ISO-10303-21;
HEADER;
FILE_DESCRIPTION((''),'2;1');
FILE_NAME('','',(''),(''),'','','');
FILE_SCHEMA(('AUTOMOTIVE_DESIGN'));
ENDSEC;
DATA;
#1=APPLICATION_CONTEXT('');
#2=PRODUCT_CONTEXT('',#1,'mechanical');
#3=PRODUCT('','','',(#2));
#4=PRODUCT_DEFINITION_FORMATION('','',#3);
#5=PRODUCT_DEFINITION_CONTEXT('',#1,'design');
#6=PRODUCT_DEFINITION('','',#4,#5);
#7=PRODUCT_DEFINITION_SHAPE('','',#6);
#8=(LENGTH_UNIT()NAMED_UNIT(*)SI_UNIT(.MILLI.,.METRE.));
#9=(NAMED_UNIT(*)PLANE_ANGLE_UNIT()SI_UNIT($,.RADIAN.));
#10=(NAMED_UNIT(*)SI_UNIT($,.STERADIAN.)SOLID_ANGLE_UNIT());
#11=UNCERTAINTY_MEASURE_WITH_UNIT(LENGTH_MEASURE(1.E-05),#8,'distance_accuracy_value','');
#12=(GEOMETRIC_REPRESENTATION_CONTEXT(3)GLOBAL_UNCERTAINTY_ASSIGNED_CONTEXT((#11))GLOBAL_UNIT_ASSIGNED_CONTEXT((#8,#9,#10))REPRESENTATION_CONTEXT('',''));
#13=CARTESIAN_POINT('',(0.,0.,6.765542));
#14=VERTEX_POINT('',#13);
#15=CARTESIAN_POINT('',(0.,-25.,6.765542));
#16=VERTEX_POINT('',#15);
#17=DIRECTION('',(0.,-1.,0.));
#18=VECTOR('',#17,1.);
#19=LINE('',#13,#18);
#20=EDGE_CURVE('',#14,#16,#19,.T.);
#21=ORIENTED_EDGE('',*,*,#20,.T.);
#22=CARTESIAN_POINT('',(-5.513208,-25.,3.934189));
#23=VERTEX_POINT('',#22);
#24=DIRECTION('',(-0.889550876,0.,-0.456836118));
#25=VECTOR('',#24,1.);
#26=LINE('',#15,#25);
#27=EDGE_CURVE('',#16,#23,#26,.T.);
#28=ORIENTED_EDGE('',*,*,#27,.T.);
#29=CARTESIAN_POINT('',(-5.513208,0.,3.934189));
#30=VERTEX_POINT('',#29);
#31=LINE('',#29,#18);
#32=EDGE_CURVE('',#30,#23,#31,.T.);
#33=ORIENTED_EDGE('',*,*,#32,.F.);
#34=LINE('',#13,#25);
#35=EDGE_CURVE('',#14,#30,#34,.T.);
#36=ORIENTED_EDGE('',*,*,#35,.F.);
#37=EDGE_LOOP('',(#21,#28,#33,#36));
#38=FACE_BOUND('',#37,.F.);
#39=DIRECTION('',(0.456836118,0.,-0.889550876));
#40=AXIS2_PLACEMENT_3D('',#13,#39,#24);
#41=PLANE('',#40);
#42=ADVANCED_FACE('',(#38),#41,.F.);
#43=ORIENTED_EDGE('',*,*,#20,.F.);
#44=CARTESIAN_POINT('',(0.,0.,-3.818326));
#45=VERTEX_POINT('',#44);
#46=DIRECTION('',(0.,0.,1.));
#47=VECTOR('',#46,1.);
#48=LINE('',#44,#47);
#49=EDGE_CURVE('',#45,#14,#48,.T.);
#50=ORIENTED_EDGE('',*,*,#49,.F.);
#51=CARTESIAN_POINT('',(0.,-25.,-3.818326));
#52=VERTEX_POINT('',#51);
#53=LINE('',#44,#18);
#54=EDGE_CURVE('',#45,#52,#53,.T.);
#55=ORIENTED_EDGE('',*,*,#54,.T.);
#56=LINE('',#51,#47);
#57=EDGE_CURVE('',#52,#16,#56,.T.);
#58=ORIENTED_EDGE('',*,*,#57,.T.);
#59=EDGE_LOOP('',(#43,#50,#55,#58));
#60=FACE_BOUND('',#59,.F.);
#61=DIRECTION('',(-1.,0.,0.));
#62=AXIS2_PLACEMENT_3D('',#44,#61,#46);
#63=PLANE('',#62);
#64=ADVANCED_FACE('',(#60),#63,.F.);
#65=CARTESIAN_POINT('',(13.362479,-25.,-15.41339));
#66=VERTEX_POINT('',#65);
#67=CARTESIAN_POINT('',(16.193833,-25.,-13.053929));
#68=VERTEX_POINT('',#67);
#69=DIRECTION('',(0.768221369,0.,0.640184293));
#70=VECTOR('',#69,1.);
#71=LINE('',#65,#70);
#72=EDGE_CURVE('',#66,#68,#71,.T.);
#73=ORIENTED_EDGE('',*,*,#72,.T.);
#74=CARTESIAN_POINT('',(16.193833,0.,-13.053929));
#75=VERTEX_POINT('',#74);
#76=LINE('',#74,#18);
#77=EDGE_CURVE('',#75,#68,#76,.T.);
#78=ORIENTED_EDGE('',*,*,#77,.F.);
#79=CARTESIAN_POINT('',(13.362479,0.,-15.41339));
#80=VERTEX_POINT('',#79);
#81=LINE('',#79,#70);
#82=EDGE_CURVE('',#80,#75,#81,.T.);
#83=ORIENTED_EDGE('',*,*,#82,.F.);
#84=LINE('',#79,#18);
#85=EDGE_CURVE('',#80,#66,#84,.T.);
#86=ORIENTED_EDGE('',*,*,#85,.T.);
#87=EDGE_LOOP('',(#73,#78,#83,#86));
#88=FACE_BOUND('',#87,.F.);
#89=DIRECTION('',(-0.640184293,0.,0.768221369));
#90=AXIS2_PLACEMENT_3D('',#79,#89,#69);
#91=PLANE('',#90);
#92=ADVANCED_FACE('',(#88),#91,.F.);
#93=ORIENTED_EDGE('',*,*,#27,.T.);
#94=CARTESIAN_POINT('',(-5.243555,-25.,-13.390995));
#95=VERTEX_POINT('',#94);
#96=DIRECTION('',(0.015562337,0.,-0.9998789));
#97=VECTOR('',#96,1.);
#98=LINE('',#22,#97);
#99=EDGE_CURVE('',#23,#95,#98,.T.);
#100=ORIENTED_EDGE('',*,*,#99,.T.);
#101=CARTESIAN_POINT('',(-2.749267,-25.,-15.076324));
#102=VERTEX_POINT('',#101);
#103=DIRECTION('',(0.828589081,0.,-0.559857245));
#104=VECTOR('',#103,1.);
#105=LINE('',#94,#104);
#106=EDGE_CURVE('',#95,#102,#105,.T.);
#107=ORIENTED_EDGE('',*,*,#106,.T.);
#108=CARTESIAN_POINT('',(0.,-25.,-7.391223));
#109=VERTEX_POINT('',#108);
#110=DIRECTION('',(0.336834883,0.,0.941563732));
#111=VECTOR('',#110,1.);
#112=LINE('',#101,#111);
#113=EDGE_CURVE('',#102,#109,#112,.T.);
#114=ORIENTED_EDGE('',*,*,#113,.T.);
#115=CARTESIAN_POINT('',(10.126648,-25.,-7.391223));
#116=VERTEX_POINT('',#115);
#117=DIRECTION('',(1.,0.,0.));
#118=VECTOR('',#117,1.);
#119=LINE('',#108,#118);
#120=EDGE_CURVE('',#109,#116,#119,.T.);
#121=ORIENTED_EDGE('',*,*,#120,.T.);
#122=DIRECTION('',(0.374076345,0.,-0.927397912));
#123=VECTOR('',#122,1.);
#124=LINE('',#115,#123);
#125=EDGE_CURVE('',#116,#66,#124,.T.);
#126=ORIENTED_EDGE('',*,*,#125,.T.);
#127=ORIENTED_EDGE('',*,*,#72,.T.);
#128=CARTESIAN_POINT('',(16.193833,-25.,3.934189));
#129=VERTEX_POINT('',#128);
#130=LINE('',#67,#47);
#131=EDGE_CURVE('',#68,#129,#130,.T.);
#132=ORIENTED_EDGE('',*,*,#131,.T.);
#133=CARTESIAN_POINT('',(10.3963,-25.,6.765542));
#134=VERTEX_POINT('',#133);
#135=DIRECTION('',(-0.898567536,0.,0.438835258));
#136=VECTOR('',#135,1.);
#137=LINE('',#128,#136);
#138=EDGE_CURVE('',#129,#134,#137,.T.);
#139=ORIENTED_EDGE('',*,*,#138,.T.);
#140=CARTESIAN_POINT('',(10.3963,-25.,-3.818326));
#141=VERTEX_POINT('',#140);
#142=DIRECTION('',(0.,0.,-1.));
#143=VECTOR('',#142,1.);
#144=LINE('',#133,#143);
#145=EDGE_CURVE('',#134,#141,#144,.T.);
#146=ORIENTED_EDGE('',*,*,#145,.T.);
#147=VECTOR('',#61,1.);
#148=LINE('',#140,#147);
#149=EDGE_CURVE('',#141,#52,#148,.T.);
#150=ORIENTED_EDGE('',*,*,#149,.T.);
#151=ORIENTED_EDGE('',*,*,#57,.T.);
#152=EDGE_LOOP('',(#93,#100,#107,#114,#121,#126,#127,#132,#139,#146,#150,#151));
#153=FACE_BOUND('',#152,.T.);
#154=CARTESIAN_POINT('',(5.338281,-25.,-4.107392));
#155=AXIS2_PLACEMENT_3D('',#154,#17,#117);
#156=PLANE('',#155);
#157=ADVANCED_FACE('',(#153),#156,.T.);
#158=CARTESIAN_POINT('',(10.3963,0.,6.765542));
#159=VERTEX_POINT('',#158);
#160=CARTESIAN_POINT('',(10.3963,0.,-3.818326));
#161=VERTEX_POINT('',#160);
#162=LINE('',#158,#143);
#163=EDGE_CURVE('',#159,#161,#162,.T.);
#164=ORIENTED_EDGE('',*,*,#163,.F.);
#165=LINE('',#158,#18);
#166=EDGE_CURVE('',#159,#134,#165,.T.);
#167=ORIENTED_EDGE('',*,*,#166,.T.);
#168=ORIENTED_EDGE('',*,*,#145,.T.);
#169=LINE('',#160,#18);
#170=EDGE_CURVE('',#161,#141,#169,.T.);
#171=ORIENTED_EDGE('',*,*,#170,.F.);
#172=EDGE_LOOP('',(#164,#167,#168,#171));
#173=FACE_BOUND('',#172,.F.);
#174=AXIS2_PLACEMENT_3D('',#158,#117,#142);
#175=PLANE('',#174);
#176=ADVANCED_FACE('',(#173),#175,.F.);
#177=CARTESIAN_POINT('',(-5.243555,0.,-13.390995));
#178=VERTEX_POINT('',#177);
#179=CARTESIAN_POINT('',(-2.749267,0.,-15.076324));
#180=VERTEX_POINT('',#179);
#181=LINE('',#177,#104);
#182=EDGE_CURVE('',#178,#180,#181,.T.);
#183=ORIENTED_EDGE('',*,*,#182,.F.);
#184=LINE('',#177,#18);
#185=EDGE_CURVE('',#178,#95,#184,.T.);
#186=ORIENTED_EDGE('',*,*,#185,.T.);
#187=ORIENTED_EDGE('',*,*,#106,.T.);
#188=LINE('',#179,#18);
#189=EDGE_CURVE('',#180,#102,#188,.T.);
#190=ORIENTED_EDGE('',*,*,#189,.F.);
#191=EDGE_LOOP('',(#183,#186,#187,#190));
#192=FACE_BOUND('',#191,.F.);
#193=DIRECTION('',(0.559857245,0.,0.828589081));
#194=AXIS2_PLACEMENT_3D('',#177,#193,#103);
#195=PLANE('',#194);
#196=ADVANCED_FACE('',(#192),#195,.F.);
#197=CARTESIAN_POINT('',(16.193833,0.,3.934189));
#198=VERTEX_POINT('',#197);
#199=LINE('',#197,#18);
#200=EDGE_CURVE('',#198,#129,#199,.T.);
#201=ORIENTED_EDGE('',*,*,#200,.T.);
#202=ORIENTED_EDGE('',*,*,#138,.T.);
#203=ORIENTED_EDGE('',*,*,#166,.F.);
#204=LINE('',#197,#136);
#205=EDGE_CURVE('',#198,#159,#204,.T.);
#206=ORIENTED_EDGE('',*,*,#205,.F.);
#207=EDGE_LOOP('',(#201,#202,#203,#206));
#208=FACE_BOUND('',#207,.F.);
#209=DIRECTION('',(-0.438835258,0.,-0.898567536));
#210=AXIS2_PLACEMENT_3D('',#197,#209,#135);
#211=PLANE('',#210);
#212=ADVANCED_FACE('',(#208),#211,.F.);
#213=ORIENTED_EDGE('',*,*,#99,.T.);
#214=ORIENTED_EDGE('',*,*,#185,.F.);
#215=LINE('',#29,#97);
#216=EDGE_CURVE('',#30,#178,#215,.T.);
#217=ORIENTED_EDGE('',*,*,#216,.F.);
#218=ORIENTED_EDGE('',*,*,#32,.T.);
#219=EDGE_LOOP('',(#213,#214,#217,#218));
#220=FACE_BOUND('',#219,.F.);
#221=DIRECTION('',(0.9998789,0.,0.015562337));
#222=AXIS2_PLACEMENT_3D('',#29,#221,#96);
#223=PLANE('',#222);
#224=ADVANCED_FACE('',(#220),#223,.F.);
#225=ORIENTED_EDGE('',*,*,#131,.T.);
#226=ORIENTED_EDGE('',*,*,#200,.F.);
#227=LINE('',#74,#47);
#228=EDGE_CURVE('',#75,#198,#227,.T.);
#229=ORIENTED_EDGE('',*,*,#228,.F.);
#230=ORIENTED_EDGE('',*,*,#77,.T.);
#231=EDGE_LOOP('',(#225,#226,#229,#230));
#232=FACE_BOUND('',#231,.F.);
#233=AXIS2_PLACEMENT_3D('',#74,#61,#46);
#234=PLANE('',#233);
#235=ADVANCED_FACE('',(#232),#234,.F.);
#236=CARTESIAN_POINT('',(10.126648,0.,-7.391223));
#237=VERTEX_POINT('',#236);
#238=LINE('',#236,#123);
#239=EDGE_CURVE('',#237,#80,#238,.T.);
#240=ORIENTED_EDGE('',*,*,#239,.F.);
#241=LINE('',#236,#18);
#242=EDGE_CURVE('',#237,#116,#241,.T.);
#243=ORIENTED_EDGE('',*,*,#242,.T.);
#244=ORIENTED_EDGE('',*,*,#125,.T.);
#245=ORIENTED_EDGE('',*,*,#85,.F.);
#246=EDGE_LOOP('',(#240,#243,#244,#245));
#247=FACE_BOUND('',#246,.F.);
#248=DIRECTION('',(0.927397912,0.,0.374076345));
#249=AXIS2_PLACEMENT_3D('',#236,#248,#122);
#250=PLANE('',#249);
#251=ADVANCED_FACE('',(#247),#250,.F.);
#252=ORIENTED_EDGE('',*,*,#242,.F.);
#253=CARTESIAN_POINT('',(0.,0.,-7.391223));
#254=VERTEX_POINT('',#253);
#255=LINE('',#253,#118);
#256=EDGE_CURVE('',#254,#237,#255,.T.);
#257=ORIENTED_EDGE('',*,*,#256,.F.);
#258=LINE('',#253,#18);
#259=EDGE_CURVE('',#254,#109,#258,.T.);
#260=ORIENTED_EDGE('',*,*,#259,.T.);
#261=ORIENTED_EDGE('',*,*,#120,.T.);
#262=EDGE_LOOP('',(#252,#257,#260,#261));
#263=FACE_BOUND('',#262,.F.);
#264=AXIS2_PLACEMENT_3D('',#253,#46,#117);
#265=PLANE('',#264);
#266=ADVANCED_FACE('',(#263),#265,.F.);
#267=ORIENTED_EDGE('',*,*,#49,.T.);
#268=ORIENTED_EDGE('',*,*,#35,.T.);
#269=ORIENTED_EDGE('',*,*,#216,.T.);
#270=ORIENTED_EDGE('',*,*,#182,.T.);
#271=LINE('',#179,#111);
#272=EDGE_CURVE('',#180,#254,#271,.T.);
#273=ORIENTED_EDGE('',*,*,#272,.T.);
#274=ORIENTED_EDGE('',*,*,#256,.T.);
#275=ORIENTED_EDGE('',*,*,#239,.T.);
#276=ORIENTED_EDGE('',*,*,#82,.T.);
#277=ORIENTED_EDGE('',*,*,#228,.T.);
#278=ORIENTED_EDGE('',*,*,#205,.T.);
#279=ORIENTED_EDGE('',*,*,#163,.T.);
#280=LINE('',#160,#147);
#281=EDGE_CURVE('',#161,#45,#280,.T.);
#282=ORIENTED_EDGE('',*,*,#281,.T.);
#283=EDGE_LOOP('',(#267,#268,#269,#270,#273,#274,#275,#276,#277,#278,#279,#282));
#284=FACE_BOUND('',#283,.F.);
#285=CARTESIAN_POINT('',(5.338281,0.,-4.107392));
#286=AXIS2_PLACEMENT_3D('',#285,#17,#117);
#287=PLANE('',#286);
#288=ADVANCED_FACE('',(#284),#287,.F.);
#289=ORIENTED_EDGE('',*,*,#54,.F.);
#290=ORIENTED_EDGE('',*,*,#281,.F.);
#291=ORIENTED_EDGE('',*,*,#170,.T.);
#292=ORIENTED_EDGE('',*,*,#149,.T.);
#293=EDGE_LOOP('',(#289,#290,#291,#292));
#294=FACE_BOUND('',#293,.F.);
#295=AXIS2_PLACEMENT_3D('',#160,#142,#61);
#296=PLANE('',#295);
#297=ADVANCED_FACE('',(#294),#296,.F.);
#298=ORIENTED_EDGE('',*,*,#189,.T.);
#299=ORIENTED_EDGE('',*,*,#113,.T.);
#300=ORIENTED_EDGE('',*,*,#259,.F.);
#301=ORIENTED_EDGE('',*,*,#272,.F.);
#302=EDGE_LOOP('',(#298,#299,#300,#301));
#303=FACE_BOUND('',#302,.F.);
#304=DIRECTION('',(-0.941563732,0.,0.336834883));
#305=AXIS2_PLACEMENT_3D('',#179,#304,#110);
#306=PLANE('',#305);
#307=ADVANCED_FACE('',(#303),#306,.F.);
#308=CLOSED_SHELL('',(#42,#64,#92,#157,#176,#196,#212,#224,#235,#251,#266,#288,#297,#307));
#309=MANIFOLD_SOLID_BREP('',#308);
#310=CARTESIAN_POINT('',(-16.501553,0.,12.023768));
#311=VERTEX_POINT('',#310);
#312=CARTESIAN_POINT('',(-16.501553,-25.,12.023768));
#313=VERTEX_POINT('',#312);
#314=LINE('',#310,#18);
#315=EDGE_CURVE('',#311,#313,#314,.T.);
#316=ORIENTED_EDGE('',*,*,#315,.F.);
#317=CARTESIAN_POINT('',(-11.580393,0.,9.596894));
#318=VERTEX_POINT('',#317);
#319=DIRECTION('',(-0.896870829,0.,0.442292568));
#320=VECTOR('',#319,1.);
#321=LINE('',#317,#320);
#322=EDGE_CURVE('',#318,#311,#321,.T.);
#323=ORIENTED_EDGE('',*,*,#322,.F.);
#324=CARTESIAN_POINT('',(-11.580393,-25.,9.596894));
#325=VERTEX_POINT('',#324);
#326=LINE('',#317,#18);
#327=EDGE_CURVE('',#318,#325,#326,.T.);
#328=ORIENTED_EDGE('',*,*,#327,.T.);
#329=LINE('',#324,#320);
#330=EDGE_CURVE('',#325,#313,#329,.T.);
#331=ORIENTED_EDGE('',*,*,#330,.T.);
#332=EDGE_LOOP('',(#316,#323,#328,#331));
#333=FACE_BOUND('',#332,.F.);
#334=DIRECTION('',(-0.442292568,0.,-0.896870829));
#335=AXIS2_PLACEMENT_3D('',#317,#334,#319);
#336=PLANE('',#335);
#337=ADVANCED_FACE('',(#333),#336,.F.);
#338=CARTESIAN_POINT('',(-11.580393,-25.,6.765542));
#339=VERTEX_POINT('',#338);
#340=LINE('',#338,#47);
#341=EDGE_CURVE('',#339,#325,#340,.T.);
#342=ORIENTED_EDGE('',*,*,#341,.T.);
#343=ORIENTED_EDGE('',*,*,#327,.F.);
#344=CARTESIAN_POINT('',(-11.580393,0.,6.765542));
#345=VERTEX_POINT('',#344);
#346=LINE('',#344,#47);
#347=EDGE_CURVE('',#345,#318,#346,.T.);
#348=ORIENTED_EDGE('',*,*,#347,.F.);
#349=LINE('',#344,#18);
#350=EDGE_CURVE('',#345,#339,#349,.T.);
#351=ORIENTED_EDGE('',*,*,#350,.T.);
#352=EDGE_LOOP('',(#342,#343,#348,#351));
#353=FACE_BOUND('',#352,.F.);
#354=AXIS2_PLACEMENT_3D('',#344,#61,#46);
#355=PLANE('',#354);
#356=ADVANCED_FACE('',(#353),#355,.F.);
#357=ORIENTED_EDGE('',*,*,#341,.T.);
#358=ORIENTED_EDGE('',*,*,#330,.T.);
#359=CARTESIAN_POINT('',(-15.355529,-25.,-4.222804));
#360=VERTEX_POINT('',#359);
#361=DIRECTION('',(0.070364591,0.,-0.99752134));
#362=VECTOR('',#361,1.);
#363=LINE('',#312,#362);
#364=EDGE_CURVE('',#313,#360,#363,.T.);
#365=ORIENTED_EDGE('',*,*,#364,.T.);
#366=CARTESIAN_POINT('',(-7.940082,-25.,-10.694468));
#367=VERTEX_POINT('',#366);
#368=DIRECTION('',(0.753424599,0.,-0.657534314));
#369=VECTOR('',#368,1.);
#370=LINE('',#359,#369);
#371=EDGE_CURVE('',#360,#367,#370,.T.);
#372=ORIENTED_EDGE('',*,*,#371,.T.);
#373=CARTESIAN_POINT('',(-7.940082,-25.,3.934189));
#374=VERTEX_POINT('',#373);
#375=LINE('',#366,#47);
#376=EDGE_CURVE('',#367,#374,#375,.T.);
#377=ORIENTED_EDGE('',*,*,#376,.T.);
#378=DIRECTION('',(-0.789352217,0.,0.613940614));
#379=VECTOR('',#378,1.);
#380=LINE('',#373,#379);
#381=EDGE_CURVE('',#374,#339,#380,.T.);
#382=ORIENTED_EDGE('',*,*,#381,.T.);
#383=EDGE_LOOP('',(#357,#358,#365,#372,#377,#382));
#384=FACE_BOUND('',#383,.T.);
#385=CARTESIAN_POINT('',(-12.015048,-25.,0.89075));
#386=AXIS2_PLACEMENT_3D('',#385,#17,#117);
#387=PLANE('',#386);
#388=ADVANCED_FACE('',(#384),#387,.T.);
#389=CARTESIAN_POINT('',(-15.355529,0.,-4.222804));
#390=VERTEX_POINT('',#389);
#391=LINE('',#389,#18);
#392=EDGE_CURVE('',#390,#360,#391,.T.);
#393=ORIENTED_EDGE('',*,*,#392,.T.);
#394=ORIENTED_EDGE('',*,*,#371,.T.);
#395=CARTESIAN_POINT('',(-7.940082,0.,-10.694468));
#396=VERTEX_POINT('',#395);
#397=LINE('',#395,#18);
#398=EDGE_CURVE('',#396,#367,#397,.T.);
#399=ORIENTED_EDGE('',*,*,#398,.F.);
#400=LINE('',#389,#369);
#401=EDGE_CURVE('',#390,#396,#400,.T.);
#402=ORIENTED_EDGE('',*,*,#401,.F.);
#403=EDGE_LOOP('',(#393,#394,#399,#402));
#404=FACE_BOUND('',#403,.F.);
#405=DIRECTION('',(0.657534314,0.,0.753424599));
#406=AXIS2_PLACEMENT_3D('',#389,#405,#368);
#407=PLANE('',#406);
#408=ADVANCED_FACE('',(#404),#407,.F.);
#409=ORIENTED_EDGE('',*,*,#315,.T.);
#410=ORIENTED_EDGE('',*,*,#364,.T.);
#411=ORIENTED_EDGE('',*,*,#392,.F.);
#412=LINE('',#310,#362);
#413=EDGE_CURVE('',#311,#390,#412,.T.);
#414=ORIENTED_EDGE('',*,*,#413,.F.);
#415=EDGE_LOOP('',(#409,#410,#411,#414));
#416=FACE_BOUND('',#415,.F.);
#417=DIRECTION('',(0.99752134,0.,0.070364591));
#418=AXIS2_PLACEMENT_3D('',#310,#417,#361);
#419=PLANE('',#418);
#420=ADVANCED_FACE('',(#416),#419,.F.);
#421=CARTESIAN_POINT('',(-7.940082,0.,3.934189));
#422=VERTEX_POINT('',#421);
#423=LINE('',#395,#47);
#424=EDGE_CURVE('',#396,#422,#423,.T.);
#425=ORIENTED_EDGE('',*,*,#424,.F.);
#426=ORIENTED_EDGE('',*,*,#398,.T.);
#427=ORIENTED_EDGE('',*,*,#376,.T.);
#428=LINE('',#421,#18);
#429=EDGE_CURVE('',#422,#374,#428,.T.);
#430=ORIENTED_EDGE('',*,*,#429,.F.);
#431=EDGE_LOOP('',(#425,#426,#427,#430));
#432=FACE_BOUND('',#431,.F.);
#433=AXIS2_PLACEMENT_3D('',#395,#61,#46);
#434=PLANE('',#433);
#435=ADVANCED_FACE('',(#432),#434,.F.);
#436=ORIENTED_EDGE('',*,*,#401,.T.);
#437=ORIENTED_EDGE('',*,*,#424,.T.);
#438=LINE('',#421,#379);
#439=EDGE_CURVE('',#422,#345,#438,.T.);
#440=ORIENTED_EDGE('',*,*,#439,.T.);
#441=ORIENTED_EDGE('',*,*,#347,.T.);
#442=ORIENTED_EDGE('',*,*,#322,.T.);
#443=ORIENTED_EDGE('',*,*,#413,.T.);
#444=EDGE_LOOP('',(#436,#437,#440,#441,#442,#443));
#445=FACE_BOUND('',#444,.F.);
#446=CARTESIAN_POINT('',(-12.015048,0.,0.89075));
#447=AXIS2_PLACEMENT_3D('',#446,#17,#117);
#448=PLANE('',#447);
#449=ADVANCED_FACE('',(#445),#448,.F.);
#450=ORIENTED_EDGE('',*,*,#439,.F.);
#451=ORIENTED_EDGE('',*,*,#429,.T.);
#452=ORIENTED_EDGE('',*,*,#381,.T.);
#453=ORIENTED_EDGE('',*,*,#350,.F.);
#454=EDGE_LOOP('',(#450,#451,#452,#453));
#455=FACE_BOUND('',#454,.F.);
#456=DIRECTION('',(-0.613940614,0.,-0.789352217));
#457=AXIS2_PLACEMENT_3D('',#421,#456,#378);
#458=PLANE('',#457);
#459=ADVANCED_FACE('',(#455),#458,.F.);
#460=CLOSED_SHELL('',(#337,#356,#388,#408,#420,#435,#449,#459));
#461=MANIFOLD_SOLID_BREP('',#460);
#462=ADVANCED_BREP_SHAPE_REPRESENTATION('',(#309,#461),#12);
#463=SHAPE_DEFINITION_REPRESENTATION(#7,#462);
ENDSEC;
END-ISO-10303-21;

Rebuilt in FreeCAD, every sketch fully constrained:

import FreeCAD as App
import Part
import Sketcher

V = App.Vector
Q = App.Units.Quantity


def add_polygon(sketch, points):
    """Adds a closed chain of lines whose ends are joined by coincident constraints."""
    first, n = sketch.GeometryCount, len(points)
    for a, b in zip(points, points[1:] + points[:1]):
        sketch.addGeometry(Part.LineSegment(App.Vector(*a, 0), App.Vector(*b, 0)), False)
    for i in range(n):
        sketch.addConstraint(Sketcher.Constraint("Coincident", first + i, 2, first + (i + 1) % n, 1))

doc = App.newDocument("Part")
params = doc.addObject("Spreadsheet::Sheet", "Params")
for row, (alias, value) in enumerate([
    ("pad1_length", "25 mm"),
], start=1):
    params.set(f"A{row}", alias)
    params.set(f"B{row}", "=" + value)
    params.setAlias(f"B{row}", alias)

body = doc.addObject("PartDesign::Body", "Body")
body.AllowCompound = True

sketch1 = body.newObject("Sketcher::SketchObject", "Sketch")
sketch1.AttachmentSupport = (doc.getObject("XZ_Plane"), [""])
sketch1.MapMode = "FlatFace"
add_polygon(sketch1, [(-11.6, 9.6), (-16.5, 12), (-15.4, -4.2), (-7.9, -10.7), (-7.9, 3.9), (-11.6, 6.8)])
add_polygon(sketch1, [(0, 6.8), (-5.5, 3.9), (-5.2, -13.4), (-2.7, -15.1), (0, -7.4), (10.1, -7.4), (13.4, -15.4), (16.2, -13.1), (16.2, 3.9), (10.4, 6.8), (10.4, -3.8), (0, -3.8)])
sketch1.addConstraint([
    Sketcher.Constraint("Vertical", 3),
    Sketcher.Constraint("Vertical", 5),
    Sketcher.Constraint("Horizontal", 10),
    Sketcher.Constraint("Vertical", 13),
    Sketcher.Constraint("Vertical", 15),
    Sketcher.Constraint("Horizontal", 16),
    Sketcher.Constraint("Vertical", 17),
    Sketcher.Constraint("PointOnObject", 9, 2, -2),
    Sketcher.Constraint("PointOnObject", 16, 2, -2),
    Sketcher.Constraint("Horizontal", 3, 2, 6, 2),
    Sketcher.Constraint("Horizontal", 6, 2, 13, 2),
    Sketcher.Constraint("Horizontal", 4, 2, 14, 2),
    Sketcher.Constraint("Horizontal", 14, 2, 17, 2),
    Sketcher.Constraint("DistanceX", 16, 2, 16, 1, Q("10.3963 mm")),
    Sketcher.Constraint("DistanceY", 13, 1, 13, 2, Q("16.988118 mm")),
    Sketcher.Constraint("DistanceY", 1, 2, 5, 2, Q("13.819698 mm")),
    Sketcher.Constraint("DistanceY", 8, 2, 9, 2, Q("7.685101 mm")),
    Sketcher.Constraint("DistanceX", 8, 2, 12, 2, Q("18.9431 mm")),
    Sketcher.Constraint("Distance", 1, Q("16.286942 mm")),
    Sketcher.Constraint("Distance", 2, Q("9.842321 mm")),
    Sketcher.Constraint("Distance", 4, Q("4.61177 mm")),
    Sketcher.Constraint("Distance", 9, Q("8.162061 mm")),
    Sketcher.Constraint("Distance", 11, Q("8.650189 mm")),
    Sketcher.Constraint("DistanceX", 10, 1, 10, 2, Q("10.126648 mm")),
    Sketcher.Constraint("DistanceY", 3, 1, 3, 2, Q("14.628657 mm")),
    Sketcher.Constraint("DistanceY", 5, 1, 5, 2, Q("2.831352 mm")),
    Sketcher.Constraint("DistanceY", 15, 2, 15, 1, Q("10.583868 mm")),
    Sketcher.Constraint("DistanceX", 1, 2, -1, 1, Q("15.355529 mm")),
    Sketcher.Constraint("DistanceY", -1, 1, 3, 2, Q("3.934189 mm")),
    Sketcher.Constraint("DistanceX", -1, 1, 11, 2, Q("13.362479 mm")),
    Sketcher.Constraint("DistanceY", 11, 2, -1, 1, Q("15.41339 mm")),
    Sketcher.Constraint("DistanceX", 0, 2, 2, 2, Q("8.561471 mm")),
    Sketcher.Constraint("DistanceY", 3, 2, 0, 2, Q("8.089579 mm")),
    Sketcher.Constraint("DistanceX", 1, 2, 6, 2, Q("9.842321 mm")),
    Sketcher.Constraint("DistanceY", 7, 2, 1, 2, Q("9.168191 mm")),
    Sketcher.Constraint("DistanceX", 4, 2, 7, 2, Q("6.336838 mm")),
])
pad1 = body.newObject("PartDesign::Pad", "Pad")
pad1.Profile = sketch1
pad1.setExpression("Length", "Params.pad1_length")

doc.recompute()
